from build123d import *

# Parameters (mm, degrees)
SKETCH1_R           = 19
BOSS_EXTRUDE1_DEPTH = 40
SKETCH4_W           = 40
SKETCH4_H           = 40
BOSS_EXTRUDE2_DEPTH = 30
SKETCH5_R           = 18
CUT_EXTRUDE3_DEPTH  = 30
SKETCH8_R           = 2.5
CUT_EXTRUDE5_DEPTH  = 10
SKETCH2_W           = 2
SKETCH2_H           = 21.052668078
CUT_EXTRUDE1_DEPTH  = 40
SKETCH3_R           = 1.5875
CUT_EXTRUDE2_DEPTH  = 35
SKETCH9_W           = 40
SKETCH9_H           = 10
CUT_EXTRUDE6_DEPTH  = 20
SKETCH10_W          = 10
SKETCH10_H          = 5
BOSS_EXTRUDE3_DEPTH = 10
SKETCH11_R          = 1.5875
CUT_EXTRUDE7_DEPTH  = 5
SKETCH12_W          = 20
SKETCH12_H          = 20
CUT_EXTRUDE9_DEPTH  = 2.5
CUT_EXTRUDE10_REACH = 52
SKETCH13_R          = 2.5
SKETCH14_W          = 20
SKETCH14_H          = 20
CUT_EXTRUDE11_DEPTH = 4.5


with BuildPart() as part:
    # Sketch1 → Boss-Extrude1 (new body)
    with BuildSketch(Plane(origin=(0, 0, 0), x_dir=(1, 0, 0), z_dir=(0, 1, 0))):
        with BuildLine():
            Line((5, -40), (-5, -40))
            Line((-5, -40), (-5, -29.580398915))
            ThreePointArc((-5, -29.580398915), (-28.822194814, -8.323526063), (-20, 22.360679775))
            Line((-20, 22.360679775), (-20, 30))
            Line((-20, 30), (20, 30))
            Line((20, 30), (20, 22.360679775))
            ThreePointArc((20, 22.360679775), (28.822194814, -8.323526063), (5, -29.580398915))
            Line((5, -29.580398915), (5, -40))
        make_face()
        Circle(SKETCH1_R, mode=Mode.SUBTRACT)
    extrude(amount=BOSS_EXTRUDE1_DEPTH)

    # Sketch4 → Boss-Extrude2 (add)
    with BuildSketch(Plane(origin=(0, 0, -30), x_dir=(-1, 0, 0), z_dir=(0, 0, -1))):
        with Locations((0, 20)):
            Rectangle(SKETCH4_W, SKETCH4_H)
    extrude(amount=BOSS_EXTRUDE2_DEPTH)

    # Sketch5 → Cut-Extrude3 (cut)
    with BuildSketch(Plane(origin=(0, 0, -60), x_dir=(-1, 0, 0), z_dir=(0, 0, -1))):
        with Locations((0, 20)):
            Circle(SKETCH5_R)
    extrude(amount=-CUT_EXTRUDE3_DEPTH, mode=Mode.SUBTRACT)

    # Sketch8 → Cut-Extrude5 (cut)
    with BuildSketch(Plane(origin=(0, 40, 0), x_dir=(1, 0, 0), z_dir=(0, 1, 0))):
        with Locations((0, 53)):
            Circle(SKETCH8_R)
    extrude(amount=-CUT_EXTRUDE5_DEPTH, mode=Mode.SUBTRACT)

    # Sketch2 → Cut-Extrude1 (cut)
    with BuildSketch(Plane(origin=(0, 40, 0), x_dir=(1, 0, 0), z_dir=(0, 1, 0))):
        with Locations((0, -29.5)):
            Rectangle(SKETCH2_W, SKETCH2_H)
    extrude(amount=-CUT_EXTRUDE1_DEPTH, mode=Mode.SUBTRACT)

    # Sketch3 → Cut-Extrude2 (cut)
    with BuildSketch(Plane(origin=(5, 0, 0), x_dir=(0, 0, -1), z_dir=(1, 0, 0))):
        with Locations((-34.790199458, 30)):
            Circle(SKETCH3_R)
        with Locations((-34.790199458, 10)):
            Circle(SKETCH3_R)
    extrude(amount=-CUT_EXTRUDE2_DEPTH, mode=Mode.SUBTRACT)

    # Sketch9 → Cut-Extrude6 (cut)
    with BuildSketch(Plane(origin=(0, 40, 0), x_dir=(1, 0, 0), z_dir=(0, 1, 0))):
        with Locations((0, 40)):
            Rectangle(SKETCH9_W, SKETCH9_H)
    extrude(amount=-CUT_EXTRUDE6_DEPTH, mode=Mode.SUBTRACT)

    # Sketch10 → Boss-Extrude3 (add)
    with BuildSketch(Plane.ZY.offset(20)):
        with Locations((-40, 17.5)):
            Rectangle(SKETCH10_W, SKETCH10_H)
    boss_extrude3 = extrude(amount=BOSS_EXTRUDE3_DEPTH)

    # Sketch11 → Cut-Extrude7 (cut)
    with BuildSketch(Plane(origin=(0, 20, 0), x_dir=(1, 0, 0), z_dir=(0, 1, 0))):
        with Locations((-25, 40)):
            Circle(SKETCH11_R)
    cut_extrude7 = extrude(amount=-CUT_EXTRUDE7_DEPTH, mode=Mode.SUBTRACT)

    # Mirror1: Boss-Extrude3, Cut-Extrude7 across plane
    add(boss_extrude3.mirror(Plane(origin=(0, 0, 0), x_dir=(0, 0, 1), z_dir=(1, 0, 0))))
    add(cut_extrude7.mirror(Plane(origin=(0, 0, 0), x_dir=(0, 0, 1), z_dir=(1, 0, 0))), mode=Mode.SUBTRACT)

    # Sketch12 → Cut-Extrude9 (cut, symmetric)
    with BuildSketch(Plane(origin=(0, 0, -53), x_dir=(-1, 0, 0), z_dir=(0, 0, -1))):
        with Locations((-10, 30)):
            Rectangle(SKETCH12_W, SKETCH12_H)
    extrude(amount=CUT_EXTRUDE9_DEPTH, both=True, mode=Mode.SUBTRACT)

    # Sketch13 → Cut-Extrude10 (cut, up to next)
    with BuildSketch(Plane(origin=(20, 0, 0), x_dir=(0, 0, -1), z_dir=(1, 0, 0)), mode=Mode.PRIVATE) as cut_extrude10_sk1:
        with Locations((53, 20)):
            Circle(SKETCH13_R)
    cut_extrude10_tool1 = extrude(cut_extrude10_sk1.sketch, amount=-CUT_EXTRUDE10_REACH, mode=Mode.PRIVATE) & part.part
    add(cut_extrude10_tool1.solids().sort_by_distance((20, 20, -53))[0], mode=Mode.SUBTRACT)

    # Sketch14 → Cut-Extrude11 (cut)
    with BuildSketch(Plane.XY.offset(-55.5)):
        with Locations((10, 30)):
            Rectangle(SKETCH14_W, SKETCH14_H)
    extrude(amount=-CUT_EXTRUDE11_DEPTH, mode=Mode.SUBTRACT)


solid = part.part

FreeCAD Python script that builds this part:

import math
import FreeCAD as App
import Part
import Sketcher

V = App.Vector
Q = App.Units.Quantity

doc = App.newDocument("Part")
body = doc.addObject("PartDesign::Body", "Body")

# Sketch on XZ plane
sketch1 = body.newObject("Sketcher::SketchObject", "Sketch")
sketch1.AttachmentSupport = (doc.getObject("XZ_Plane"), [""])
sketch1.MapMode = "FlatFace"
sketch1.addGeometry([
    Part.LineSegment(V(-5, 40, 0), V(5, 40, 0)),  # 0
    Part.LineSegment(V(5, 40, 0), V(5, 30, 0)),  # 1
    Part.ArcOfCircle(Part.Circle(V(0, 0, 0), V(0, 0, 1), 30), math.radians(-48), math.radians(80)),  # 2
    Part.LineSegment(V(20, -22, 0), V(20, -30, 0)),  # 3
    Part.LineSegment(V(20, -30, 0), V(-20, -30, 0)),  # 4
    Part.LineSegment(V(-20, -30, 0), V(-20, -22, 0)),  # 5
    Part.ArcOfCircle(Part.Circle(V(0, 0, 0), V(0, 0, 1), 30), math.radians(100), math.radians(228)),  # 6
    Part.LineSegment(V(-5, 30, 0), V(-5, 40, 0)),  # 7
    Part.Circle(V(0, 0, 0), V(0, 0, 1), 19),  # 8
], False)
sketch1.addConstraint([
    Sketcher.Constraint("Coincident", 0, 2, 1, 1),
    Sketcher.Constraint("Coincident", 1, 2, 2, 2),
    Sketcher.Constraint("Coincident", 2, 1, 3, 1),
    Sketcher.Constraint("Coincident", 3, 2, 4, 1),
    Sketcher.Constraint("Coincident", 4, 2, 5, 1),
    Sketcher.Constraint("Coincident", 5, 2, 6, 2),
    Sketcher.Constraint("Coincident", 6, 1, 7, 1),
    Sketcher.Constraint("Coincident", 7, 2, 0, 1),
    Sketcher.Constraint("Horizontal", 0),
    Sketcher.Constraint("Vertical", 1),
    Sketcher.Constraint("Vertical", 3),
    Sketcher.Constraint("Horizontal", 4),
    Sketcher.Constraint("Vertical", 5),
    Sketcher.Constraint("Vertical", 7),
    Sketcher.Constraint("Coincident", 2, 3, -1, 1),
    Sketcher.Constraint("Coincident", 6, 3, -1, 1),
    Sketcher.Constraint("Coincident", 8, 3, -1, 1),
    Sketcher.Constraint("Equal", 2, 6),
    Sketcher.Constraint("Horizontal", 2, 1, 5, 2),
    Sketcher.Constraint("Horizontal", 1, 2, 6, 1),
    Sketcher.Constraint("Diameter", 8, Q("38 mm")),
    Sketcher.Constraint("Radius", 2, Q("30 mm")),
    Sketcher.Constraint("DistanceX", 0, 1, 0, 2, Q("10 mm")),
    Sketcher.Constraint("DistanceX", 4, 2, 4, 1, Q("40 mm")),
    Sketcher.Constraint("DistanceY", -1, 1, 0, 2, Q("40 mm")),
    Sketcher.Constraint("DistanceY", 3, 2, -1, 1, Q("30 mm")),
])
pad1 = body.newObject("PartDesign::Pad", "Pad")
pad1.Profile = sketch1
pad1.Length = 40
pad1.Reversed = True

# Sketch on XY plane
sketch2 = body.newObject("Sketcher::SketchObject", "Sketch001")
sketch2.AttachmentSupport = (doc.getObject("XY_Plane"), [""])
sketch2.MapMode = "FlatFace"
sketch2.AttachmentOffset = App.Placement(V(0, 0, -30), App.Rotation())
sketch2.addGeometry([
    Part.LineSegment(V(20, 40, 0), V(20, 0, 0)),
    Part.LineSegment(V(20, 0, 0), V(-20, 0, 0)),
    Part.LineSegment(V(-20, 0, 0), V(-20, 40, 0)),
    Part.LineSegment(V(-20, 40, 0), V(20, 40, 0)),
], False)
sketch2.addConstraint([
    Sketcher.Constraint("Coincident", 0, 2, 1, 1),
    Sketcher.Constraint("Coincident", 1, 2, 2, 1),
    Sketcher.Constraint("Coincident", 2, 2, 3, 1),
    Sketcher.Constraint("Coincident", 3, 2, 0, 1),
    Sketcher.Constraint("Vertical", 0),
    Sketcher.Constraint("Horizontal", 1),
    Sketcher.Constraint("Vertical", 2),
    Sketcher.Constraint("Horizontal", 3),
    Sketcher.Constraint("Symmetric", 0, 2, 1, 2, -1, 1),
    Sketcher.Constraint("Equal", 3, 0),
    Sketcher.Constraint("DistanceX", 1, 2, 1, 1, Q("40 mm")),
])
pad2 = body.newObject("PartDesign::Pad", "Pad001")
pad2.Profile = sketch2
pad2.Length = 30
pad2.Reversed = True

# Sketch on XY plane
sketch3 = body.newObject("Sketcher::SketchObject", "Sketch002")
sketch3.AttachmentSupport = (doc.getObject("XY_Plane"), [""])
sketch3.MapMode = "FlatFace"
sketch3.AttachmentOffset = App.Placement(V(0, 0, -60), App.Rotation())
sketch3.addGeometry(Part.Circle(V(0, 20, 0), V(0, 0, 1), 18), False)
sketch3.addConstraint([
    Sketcher.Constraint("PointOnObject", 0, 3, -2),
    Sketcher.Constraint("Diameter", 0, Q("36 mm")),
    Sketcher.Constraint("DistanceY", -1, 1, 0, 3, Q("20 mm")),
])
pocket1 = body.newObject("PartDesign::Pocket", "Pocket")
pocket1.Profile = sketch3
pocket1.Length = 30
pocket1.Reversed = True

# Sketch on XZ plane
sketch4 = body.newObject("Sketcher::SketchObject", "Sketch003")
sketch4.AttachmentSupport = (doc.getObject("XZ_Plane"), [""])
sketch4.MapMode = "FlatFace"
sketch4.AttachmentOffset = App.Placement(V(0, 0, -40), App.Rotation())
sketch4.addGeometry(Part.Circle(V(0, -53, 0), V(0, 0, 1), 2.5), False)
sketch4.addConstraint([
    Sketcher.Constraint("PointOnObject", 0, 3, -2),
    Sketcher.Constraint("Diameter", 0, Q("5 mm")),
    Sketcher.Constraint("DistanceY", 0, 3, -1, 1, Q("53 mm")),
])
pocket2 = body.newObject("PartDesign::Pocket", "Pocket001")
pocket2.Profile = sketch4
pocket2.Length = 10
pocket2.Reversed = True

# Sketch on XZ plane
sketch5 = body.newObject("Sketcher::SketchObject", "Sketch004")
sketch5.AttachmentSupport = (doc.getObject("XZ_Plane"), [""])
sketch5.MapMode = "FlatFace"
sketch5.AttachmentOffset = App.Placement(V(0, 0, -40), App.Rotation())
sketch5.addGeometry([
    Part.LineSegment(V(-1, 19, 0), V(-1, 40, 0)),
    Part.LineSegment(V(-1, 40, 0), V(1, 40, 0)),
    Part.LineSegment(V(1, 40, 0), V(1, 19, 0)),
    Part.LineSegment(V(1, 19, 0), V(-1, 19, 0)),
], False)
sketch5.addConstraint([
    Sketcher.Constraint("Coincident", 0, 2, 1, 1),
    Sketcher.Constraint("Coincident", 1, 2, 2, 1),
    Sketcher.Constraint("Coincident", 2, 2, 3, 1),
    Sketcher.Constraint("Coincident", 3, 2, 0, 1),
    Sketcher.Constraint("Vertical", 0),
    Sketcher.Constraint("Horizontal", 1),
    Sketcher.Constraint("Vertical", 2),
    Sketcher.Constraint("Horizontal", 3),
    Sketcher.Constraint("DistanceX", 1, 1, 1, 2, Q("2 mm")),
    Sketcher.Constraint("DistanceX", 0, 2, -1, 1, Q("1 mm")),
    Sketcher.Constraint("DistanceY", 0, 1, 0, 2, Q("21.052668 mm")),
    Sketcher.Constraint("DistanceY", -1, 1, 0, 2, Q("40.026334 mm")),
])
pocket3 = body.newObject("PartDesign::Pocket", "Pocket002")
pocket3.Profile = sketch5
pocket3.Length = 40
pocket3.Reversed = True

# Sketch on YZ plane
sketch6 = body.newObject("Sketcher::SketchObject", "Sketch005")
sketch6.AttachmentSupport = (doc.getObject("YZ_Plane"), [""])
sketch6.MapMode = "FlatFace"
sketch6.AttachmentOffset = App.Placement(V(0, 0, 5), App.Rotation())
sketch6.addGeometry([
    Part.Circle(V(30, 34.8, 0), V(0, 0, 1), 1.6),
    Part.Circle(V(10, 34.8, 0), V(0, 0, 1), 1.6),
], False)
sketch6.addConstraint([
    Sketcher.Constraint("Equal", 0, 1),
    Sketcher.Constraint("Horizontal", 0, 3, 1, 3),
    Sketcher.Constraint("Diameter", 0, Q("3.175 mm")),
    Sketcher.Constraint("DistanceX", -1, 1, 0, 3, Q("30 mm")),
    Sketcher.Constraint("DistanceX", -1, 1, 1, 3, Q("10 mm")),
    Sketcher.Constraint("DistanceY", -1, 1, 0, 3, Q("34.790199 mm")),
])
pocket4 = body.newObject("PartDesign::Pocket", "Pocket003")
pocket4.Profile = sketch6
pocket4.Length = 35

# Sketch on XZ plane
sketch7 = body.newObject("Sketcher::SketchObject", "Sketch006")
sketch7.AttachmentSupport = (doc.getObject("XZ_Plane"), [""])
sketch7.MapMode = "FlatFace"
sketch7.AttachmentOffset = App.Placement(V(0, 0, -40), App.Rotation())
sketch7.addGeometry([
    Part.LineSegment(V(-20, -45, 0), V(-20, -35, 0)),
    Part.LineSegment(V(-20, -35, 0), V(20, -35, 0)),
    Part.LineSegment(V(20, -35, 0), V(20, -45, 0)),
    Part.LineSegment(V(20, -45, 0), V(-20, -45, 0)),
], False)
sketch7.addConstraint([
    Sketcher.Constraint("Coincident", 0, 2, 1, 1),
    Sketcher.Constraint("Coincident", 1, 2, 2, 1),
    Sketcher.Constraint("Coincident", 2, 2, 3, 1),
    Sketcher.Constraint("Coincident", 3, 2, 0, 1),
    Sketcher.Constraint("Vertical", 0),
    Sketcher.Constraint("Horizontal", 1),
    Sketcher.Constraint("Vertical", 2),
    Sketcher.Constraint("Horizontal", 3),
    Sketcher.Constraint("DistanceX", 1, 1, 1, 2, Q("40 mm")),
    Sketcher.Constraint("DistanceY", 0, 1, 0, 2, Q("10 mm")),
    Sketcher.Constraint("DistanceX", 0, 2, -1, 1, Q("20 mm")),
    Sketcher.Constraint("DistanceY", 0, 2, -1, 1, Q("35 mm")),
])
pocket5 = body.newObject("PartDesign::Pocket", "Pocket004")
pocket5.Profile = sketch7
pocket5.Length = 20
pocket5.Reversed = True

# Sketch on YZ plane
sketch8 = body.newObject("Sketcher::SketchObject", "Sketch007")
sketch8.AttachmentSupport = (doc.getObject("YZ_Plane"), [""])
sketch8.MapMode = "FlatFace"
sketch8.AttachmentOffset = App.Placement(V(0, 0, -20), App.Rotation())
sketch8.addGeometry([
    Part.LineSegment(V(20, -45, 0), V(15, -45, 0)),
    Part.LineSegment(V(15, -45, 0), V(15, -35, 0)),
    Part.LineSegment(V(15, -35, 0), V(20, -35, 0)),
    Part.LineSegment(V(20, -35, 0), V(20, -45, 0)),
], False)
sketch8.addConstraint([
    Sketcher.Constraint("Coincident", 0, 2, 1, 1),
    Sketcher.Constraint("Coincident", 1, 2, 2, 1),
    Sketcher.Constraint("Coincident", 2, 2, 3, 1),
    Sketcher.Constraint("Coincident", 3, 2, 0, 1),
    Sketcher.Constraint("Horizontal", 0),
    Sketcher.Constraint("Vertical", 1),
    Sketcher.Constraint("Horizontal", 2),
    Sketcher.Constraint("Vertical", 3),
    Sketcher.Constraint("DistanceX", 0, 2, 0, 1, Q("5 mm")),
    Sketcher.Constraint("DistanceY", 1, 1, 1, 2, Q("10 mm")),
    Sketcher.Constraint("DistanceX", -1, 1, 0, 2, Q("15 mm")),
    Sketcher.Constraint("DistanceY", 0, 2, -1, 1, Q("45 mm")),
])
pad3 = body.newObject("PartDesign::Pad", "Pad002")
pad3.Profile = sketch8
pad3.Length = 10
pad3.Reversed = True

# Sketch on XZ plane
sketch9 = body.newObject("Sketcher::SketchObject", "Sketch008")
sketch9.AttachmentSupport = (doc.getObject("XZ_Plane"), [""])
sketch9.MapMode = "FlatFace"
sketch9.AttachmentOffset = App.Placement(V(0, 0, -20), App.Rotation())
sketch9.addGeometry(Part.Circle(V(-25, -40, 0), V(0, 0, 1), 1.6), False)
sketch9.addConstraint([
    Sketcher.Constraint("Diameter", 0, Q("3.175 mm")),
    Sketcher.Constraint("DistanceX", 0, 3, -1, 1, Q("25 mm")),
    Sketcher.Constraint("DistanceY", 0, 3, -1, 1, Q("40 mm")),
])
pocket6 = body.newObject("PartDesign::Pocket", "Pocket005")
pocket6.Profile = sketch9
pocket6.Length = 5
pocket6.Reversed = True
doc.recompute()

mirrored = body.newObject("PartDesign::Mirrored", "Mirrored")
mirrored.Originals = [pad3, pocket6]
mirrored.MirrorPlane = (doc.getObject("YZ_Plane"), [""])
body.Tip = mirrored

# Sketch on XY plane
sketch10 = body.newObject("Sketcher::SketchObject", "Sketch009")
sketch10.AttachmentSupport = (doc.getObject("XY_Plane"), [""])
sketch10.MapMode = "FlatFace"
sketch10.AttachmentOffset = App.Placement(V(0, 0, -53), App.Rotation())
sketch10.addGeometry([
    Part.LineSegment(V(20, 40, 0), V(20, 20, 0)),
    Part.LineSegment(V(20, 20, 0), V(0, 20, 0)),
    Part.LineSegment(V(0, 20, 0), V(0, 40, 0)),
    Part.LineSegment(V(0, 40, 0), V(20, 40, 0)),
], False)
sketch10.addConstraint([
    Sketcher.Constraint("Coincident", 0, 2, 1, 1),
    Sketcher.Constraint("Coincident", 1, 2, 2, 1),
    Sketcher.Constraint("Coincident", 2, 2, 3, 1),
    Sketcher.Constraint("Coincident", 3, 2, 0, 1),
    Sketcher.Constraint("Vertical", 0),
    Sketcher.Constraint("Horizontal", 1),
    Sketcher.Constraint("Vertical", 2),
    Sketcher.Constraint("Horizontal", 3),
    Sketcher.Constraint("PointOnObject", 1, 2, -2),
    Sketcher.Constraint("Equal", 3, 0),
    Sketcher.Constraint("DistanceX", 1, 2, 1, 1, Q("20 mm")),
    Sketcher.Constraint("DistanceY", -1, 1, 0, 2, Q("20 mm")),
])
pocket7 = body.newObject("PartDesign::Pocket", "Pocket006")
pocket7.Profile = sketch10
pocket7.Length = 5
pocket7.Midplane = True

# Sketch on YZ plane
sketch11 = body.newObject("Sketcher::SketchObject", "Sketch010")
sketch11.AttachmentSupport = (doc.getObject("YZ_Plane"), [""])
sketch11.MapMode = "FlatFace"
sketch11.AttachmentOffset = App.Placement(V(0, 0, 20), App.Rotation())
sketch11.addGeometry(Part.Circle(V(20, -53, 0), V(0, 0, 1), 2.5), False)
sketch11.addConstraint([
    Sketcher.Constraint("Diameter", 0, Q("5 mm")),
    Sketcher.Constraint("DistanceX", -1, 1, 0, 3, Q("20 mm")),
    Sketcher.Constraint("DistanceY", 0, 3, -1, 1, Q("53 mm")),
])
pocket8 = body.newObject("PartDesign::Pocket", "Pocket007")
pocket8.Profile = sketch11
pocket8.Type = "UpToFirst"

# Sketch on XY plane
sketch12 = body.newObject("Sketcher::SketchObject", "Sketch011")
sketch12.AttachmentSupport = (doc.getObject("XY_Plane"), [""])
sketch12.MapMode = "FlatFace"
sketch12.AttachmentOffset = App.Placement(V(0, 0, -55.5), App.Rotation())
sketch12.addGeometry([
    Part.LineSegment(V(0, 40, 0), V(0, 20, 0)),
    Part.LineSegment(V(0, 20, 0), V(20, 20, 0)),
    Part.LineSegment(V(20, 20, 0), V(20, 40, 0)),
    Part.LineSegment(V(20, 40, 0), V(0, 40, 0)),
], False)
sketch12.addConstraint([
    Sketcher.Constraint("Coincident", 0, 2, 1, 1),
    Sketcher.Constraint("Coincident", 1, 2, 2, 1),
    Sketcher.Constraint("Coincident", 2, 2, 3, 1),
    Sketcher.Constraint("Coincident", 3, 2, 0, 1),
    Sketcher.Constraint("Vertical", 0),
    Sketcher.Constraint("Horizontal", 1),
    Sketcher.Constraint("Vertical", 2),
    Sketcher.Constraint("Horizontal", 3),
    Sketcher.Constraint("PointOnObject", 0, 2, -2),
    Sketcher.Constraint("Equal", 3, 0),
    Sketcher.Constraint("DistanceX", 1, 1, 1, 2, Q("20 mm")),
    Sketcher.Constraint("DistanceY", -1, 1, 0, 2, Q("20 mm")),
])
pocket9 = body.newObject("PartDesign::Pocket", "Pocket008")
pocket9.Profile = sketch12
pocket9.Length = 4.5

doc.recompute()
